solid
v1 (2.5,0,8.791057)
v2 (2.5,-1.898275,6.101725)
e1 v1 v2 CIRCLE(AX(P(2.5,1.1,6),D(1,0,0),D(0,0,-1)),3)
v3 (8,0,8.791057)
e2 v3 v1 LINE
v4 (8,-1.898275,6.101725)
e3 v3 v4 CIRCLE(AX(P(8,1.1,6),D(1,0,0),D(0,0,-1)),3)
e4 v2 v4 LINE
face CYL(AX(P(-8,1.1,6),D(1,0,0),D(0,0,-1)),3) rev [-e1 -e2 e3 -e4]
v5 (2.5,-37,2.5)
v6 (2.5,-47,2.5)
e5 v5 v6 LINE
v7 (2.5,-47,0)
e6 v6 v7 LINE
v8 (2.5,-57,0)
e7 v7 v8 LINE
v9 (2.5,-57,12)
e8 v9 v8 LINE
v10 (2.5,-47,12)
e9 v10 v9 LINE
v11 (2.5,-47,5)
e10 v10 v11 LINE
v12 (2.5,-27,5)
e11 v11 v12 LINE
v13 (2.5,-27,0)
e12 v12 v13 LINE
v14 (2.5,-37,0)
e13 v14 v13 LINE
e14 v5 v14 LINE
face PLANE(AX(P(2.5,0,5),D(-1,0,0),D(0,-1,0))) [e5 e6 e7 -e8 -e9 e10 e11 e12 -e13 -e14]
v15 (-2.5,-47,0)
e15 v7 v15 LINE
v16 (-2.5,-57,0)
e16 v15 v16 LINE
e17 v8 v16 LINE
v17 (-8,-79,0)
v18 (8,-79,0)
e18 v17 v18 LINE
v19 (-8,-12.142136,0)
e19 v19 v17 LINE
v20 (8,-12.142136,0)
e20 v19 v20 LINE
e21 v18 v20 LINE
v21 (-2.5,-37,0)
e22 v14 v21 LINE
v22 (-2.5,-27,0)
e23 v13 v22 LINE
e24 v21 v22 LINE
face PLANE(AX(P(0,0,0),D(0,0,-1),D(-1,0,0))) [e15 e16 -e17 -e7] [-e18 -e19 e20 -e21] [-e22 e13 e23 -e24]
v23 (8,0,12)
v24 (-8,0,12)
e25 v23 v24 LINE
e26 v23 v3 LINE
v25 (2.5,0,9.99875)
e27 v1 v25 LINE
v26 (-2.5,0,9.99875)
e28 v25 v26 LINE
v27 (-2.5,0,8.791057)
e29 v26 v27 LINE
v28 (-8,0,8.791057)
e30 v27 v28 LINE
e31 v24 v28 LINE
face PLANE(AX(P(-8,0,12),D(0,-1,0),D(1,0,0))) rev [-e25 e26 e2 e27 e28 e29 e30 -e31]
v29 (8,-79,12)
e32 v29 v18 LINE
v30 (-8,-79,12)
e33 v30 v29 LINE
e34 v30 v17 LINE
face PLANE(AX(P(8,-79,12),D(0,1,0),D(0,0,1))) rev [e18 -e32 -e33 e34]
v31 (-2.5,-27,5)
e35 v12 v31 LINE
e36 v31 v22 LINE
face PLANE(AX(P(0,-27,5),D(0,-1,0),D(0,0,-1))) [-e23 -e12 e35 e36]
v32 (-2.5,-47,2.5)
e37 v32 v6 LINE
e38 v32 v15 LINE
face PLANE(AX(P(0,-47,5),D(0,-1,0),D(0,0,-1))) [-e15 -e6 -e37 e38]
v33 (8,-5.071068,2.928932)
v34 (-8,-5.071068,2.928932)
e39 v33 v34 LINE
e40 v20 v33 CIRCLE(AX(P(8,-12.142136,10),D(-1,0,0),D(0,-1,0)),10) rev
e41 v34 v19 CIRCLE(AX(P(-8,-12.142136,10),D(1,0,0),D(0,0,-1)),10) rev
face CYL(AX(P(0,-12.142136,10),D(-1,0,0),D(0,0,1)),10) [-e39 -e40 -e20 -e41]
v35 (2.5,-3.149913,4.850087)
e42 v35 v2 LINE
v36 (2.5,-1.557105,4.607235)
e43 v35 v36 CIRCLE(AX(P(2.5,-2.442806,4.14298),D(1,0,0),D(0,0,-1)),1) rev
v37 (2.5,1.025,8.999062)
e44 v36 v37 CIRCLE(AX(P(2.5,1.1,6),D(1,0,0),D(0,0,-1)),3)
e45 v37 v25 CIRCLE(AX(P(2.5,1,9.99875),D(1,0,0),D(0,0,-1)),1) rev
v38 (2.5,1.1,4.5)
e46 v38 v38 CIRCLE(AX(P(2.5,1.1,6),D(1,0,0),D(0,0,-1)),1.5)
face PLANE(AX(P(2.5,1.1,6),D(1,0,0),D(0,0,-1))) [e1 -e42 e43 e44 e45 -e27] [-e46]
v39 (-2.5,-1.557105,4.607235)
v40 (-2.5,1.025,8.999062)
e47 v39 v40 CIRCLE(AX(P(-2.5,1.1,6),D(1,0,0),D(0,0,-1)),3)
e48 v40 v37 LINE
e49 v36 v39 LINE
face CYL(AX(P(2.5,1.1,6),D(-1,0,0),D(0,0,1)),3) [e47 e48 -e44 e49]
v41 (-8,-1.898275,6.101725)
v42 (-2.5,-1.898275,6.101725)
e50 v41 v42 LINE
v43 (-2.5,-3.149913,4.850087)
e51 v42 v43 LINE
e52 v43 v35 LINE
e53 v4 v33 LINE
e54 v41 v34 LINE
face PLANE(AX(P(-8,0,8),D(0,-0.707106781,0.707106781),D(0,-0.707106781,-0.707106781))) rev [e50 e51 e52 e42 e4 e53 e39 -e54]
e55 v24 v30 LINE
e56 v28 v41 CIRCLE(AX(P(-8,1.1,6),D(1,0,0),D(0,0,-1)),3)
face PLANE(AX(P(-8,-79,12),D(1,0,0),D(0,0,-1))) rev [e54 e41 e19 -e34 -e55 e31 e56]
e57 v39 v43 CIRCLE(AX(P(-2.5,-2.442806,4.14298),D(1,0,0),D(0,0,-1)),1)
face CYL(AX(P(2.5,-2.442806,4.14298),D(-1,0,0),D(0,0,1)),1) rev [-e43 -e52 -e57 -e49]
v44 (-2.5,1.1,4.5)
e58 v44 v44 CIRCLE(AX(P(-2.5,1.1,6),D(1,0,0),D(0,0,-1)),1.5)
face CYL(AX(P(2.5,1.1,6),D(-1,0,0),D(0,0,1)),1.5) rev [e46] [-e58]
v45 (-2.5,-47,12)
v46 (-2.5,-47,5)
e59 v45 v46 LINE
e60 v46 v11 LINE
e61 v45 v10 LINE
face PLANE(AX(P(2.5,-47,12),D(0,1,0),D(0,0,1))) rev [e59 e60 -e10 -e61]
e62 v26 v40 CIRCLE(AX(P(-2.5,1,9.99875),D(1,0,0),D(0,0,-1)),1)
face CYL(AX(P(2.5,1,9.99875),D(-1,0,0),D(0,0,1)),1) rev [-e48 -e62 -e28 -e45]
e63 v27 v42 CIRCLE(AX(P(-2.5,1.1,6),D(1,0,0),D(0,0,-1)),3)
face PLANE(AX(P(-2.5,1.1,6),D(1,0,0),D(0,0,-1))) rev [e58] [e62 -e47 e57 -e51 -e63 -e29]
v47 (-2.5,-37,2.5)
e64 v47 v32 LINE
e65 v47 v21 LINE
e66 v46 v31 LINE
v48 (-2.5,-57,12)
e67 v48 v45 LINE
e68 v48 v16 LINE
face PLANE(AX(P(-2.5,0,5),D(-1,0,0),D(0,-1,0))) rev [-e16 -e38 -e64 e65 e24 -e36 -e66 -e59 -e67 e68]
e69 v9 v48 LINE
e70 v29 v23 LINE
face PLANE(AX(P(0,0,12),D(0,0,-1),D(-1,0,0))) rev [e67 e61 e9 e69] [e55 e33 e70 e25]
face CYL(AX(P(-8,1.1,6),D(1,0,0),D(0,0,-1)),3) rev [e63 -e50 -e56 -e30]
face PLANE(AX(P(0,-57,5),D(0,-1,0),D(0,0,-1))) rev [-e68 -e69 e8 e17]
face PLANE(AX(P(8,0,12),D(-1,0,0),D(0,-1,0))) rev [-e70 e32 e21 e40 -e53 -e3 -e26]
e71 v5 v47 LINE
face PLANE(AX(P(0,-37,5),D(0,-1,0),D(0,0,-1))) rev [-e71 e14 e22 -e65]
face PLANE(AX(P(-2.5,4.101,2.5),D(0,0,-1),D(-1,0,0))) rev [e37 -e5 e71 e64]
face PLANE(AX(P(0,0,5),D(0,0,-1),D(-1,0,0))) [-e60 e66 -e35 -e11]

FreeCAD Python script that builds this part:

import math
import FreeCAD as App
import Part
import Sketcher
from FreeCAD import Vector
Q = App.Units.Quantity


def edges_at(feature, points):
    """Names of the edges that pass closest to the given points."""
    edges = feature.Shape.Edges
    near = lambda p: min(range(len(edges)), key=lambda i: edges[i].distToShape(Part.Vertex(*p))[0])
    return sorted({f"Edge{near(p) + 1}" for p in points})

doc = App.newDocument("Part")
params = doc.addObject("Spreadsheet::Sheet", "Params")
for row, (alias, value) in enumerate([
    ("sketch1_width", "16 mm"),
    ("sketch1_height", "79 mm"),
    ("pad1_length", "12 mm"),
    ("sketch2_width", "8 mm"),
    ("sketch3_radius", "3 mm"),
    ("sketch3_radius2", "1.5 mm"),
    ("sketch4_diameter", "6 mm"),
    ("sketch4_diameter2", "3 mm"),
    ("pad2_length", "5 mm"),
    ("fillet_radius", "1 mm"),
    ("fillet2_radius", "10 mm"),
    ("sketch5_width", "5 mm"),
    ("sketch5_height", "10 mm"),
    ("pocket3_length", "5 mm"),
    ("sketch6_width", "5 mm"),
    ("sketch6_height", "2.5 mm"),
    ("sketch7_width", "5 mm"),
    ("sketch7_height", "10 mm"),
], start=1):
    params.set(f"A{row}", alias)
    params.set(f"B{row}", "=" + value)
    params.setAlias(f"B{row}", alias)

body = doc.addObject("PartDesign::Body", "Body")

# Sketch on XY plane
sketch1 = body.newObject("Sketcher::SketchObject", "Sketch")
sketch1.AttachmentSupport = (doc.getObject("XY_Plane"), [""])
sketch1.MapMode = "FlatFace"
sketch1.addGeometry([
    Part.LineSegment(Vector(-8, 0, 0), Vector(-8, -79, 0)),
    Part.LineSegment(Vector(-8, -79, 0), Vector(8, -79, 0)),
    Part.LineSegment(Vector(8, -79, 0), Vector(8, 0, 0)),
    Part.LineSegment(Vector(8, 0, 0), Vector(-8, 0, 0)),
], False)
sketch1.addConstraint([
    Sketcher.Constraint("Coincident", 0, 2, 1, 1),
    Sketcher.Constraint("Coincident", 1, 2, 2, 1),
    Sketcher.Constraint("Coincident", 2, 2, 3, 1),
    Sketcher.Constraint("Coincident", 3, 2, 0, 1),
    Sketcher.Constraint("Vertical", 0),
    Sketcher.Constraint("Horizontal", 1),
    Sketcher.Constraint("Vertical", 2),
    Sketcher.Constraint("Horizontal", 3),
    Sketcher.Constraint("Symmetric", 2, 2, 3, 2, -1, 1),
    Sketcher.Constraint("DistanceX", 1, 1, 1, 2, Q("16 mm")),
    Sketcher.Constraint("DistanceY", 0, 2, 0, 1, Q("79 mm")),
])
sketch1.setExpression("Constraints[9]", "Params.sketch1_width")
sketch1.setExpression("Constraints[10]", "Params.sketch1_height")
pad1 = body.newObject("PartDesign::Pad", "Pad")
pad1.Profile = sketch1
pad1.setExpression("Length", "Params.pad1_length")

# Sketch on YZ plane
sketch2 = body.newObject("Sketcher::SketchObject", "Sketch001")
sketch2.AttachmentSupport = (doc.getObject("YZ_Plane"), [""])
sketch2.MapMode = "FlatFace"
sketch2.addGeometry([
    Part.LineSegment(Vector(0, 0, 0), Vector(0, 8, 0)),
    Part.LineSegment(Vector(0, 8, 0), Vector(-8, 0, 0)),
    Part.LineSegment(Vector(-8, 0, 0), Vector(0, 0, 0)),
], False)
sketch2.addConstraint([
    Sketcher.Constraint("Coincident", 0, 2, 1, 1),
    Sketcher.Constraint("Coincident", 1, 2, 2, 1),
    Sketcher.Constraint("Coincident", 2, 2, 0, 1),
    Sketcher.Constraint("Vertical", 0),
    Sketcher.Constraint("Horizontal", 2),
    Sketcher.Constraint("Coincident", 2, 2, -1, 1),
    Sketcher.Constraint("Equal", 2, 0),
    Sketcher.Constraint("DistanceX", 2, 1, 2, 2, Q("8 mm")),
])
sketch2.setExpression("Constraints[7]", "Params.sketch2_width")
pocket1 = body.newObject("PartDesign::Pocket", "Pocket")
pocket1.Profile = sketch2
pocket1.Type = "ThroughAll"
pocket1.Midplane = True

# Sketch on YZ plane
sketch3 = body.newObject("Sketcher::SketchObject", "Sketch002")
sketch3.AttachmentSupport = (doc.getObject("YZ_Plane"), [""])
sketch3.MapMode = "FlatFace"
sketch3.addGeometry([
    Part.ArcOfCircle(Part.Circle(Vector(1.1, 6, 0), Vector(0, 0, 1), 3), math.radians(-90), math.radians(111.510188)),  # 0
    Part.ArcOfCircle(Part.Circle(Vector(1.1, 6, 0), Vector(0, 0, 1), 3), math.radians(111.510188), math.radians(248.489812)),  # 1
    Part.ArcOfCircle(Part.Circle(Vector(1.1, 6, 0), Vector(0, 0, 1), 3), math.radians(-111.510188), math.radians(-90)),  # 2
    Part.ArcOfCircle(Part.Circle(Vector(1.1, 6, 0), Vector(0, 0, 1), 1.5), math.radians(-137.166572), math.radians(-90)),  # 3
    Part.ArcOfCircle(Part.Circle(Vector(1.1, 6, 0), Vector(0, 0, 1), 1.5), math.radians(137.166572), math.radians(222.833428)),  # 4
    Part.ArcOfCircle(Part.Circle(Vector(1.1, 6, 0), Vector(0, 0, 1), 1.5), math.radians(-90), math.radians(137.166572)),  # 5
], False)
sketch3.addConstraint([
    Sketcher.Constraint("Tangent", 0, 2, 1, 1),
    Sketcher.Constraint("Tangent", 1, 2, 2, 1),
    Sketcher.Constraint("Tangent", 2, 2, 0, 1),
    Sketcher.Constraint("Tangent", 3, 1, 4, 2),
    Sketcher.Constraint("Tangent", 4, 1, 5, 2),
    Sketcher.Constraint("Tangent", 5, 1, 3, 2),
    Sketcher.Constraint("Coincident", 3, 3, 0, 3),
    Sketcher.Constraint("PointOnObject", 0, 2, -2),
    Sketcher.Constraint("PointOnObject", 1, 2, -2),
    Sketcher.Constraint("PointOnObject", 3, 1, -2),
    Sketcher.Constraint("PointOnObject", 4, 1, -2),
    Sketcher.Constraint("Vertical", 5, 3, 2, 2),
    Sketcher.Constraint("Vertical", 2, 2, 5, 1),
    Sketcher.Constraint("Radius", 0, Q("3 mm")),
    Sketcher.Constraint("Radius", 3, Q("1.5 mm")),
    Sketcher.Constraint("DistanceY", -1, 1, 0, 3, Q("6 mm")),
    Sketcher.Constraint("DistanceX", -1, 1, 0, 3, Q("1.1 mm")),
])
sketch3.setExpression("Constraints[13]", "Params.sketch3_radius")
sketch3.setExpression("Constraints[14]", "Params.sketch3_radius2")
pocket2 = body.newObject("PartDesign::Pocket", "Pocket001")
pocket2.Profile = sketch3
pocket2.Type = "ThroughAll"
pocket2.Midplane = True

# Sketch on YZ plane
sketch4 = body.newObject("Sketcher::SketchObject", "Sketch003")
sketch4.AttachmentSupport = (doc.getObject("YZ_Plane"), [""])
sketch4.MapMode = "FlatFace"
sketch4.addGeometry([
    Part.Circle(Vector(1.1, 6, 0), Vector(0, 0, 1), 3),
    Part.Circle(Vector(1.1, 6, 0), Vector(0, 0, 1), 1.5),
], False)
sketch4.addConstraint([
    Sketcher.Constraint("Coincident", 1, 3, 0, 3),
    Sketcher.Constraint("Diameter", 0, Q("6 mm")),
    Sketcher.Constraint("Diameter", 1, Q("3 mm")),
    Sketcher.Constraint("DistanceY", -1, 1, 0, 3, Q("6 mm")),
    Sketcher.Constraint("DistanceX", -1, 1, 0, 3, Q("1.1 mm")),
])
sketch4.setExpression("Constraints[1]", "Params.sketch4_diameter")
sketch4.setExpression("Constraints[2]", "Params.sketch4_diameter2")
pad2 = body.newObject("PartDesign::Pad", "Pad001")
pad2.Profile = sketch4
pad2.setExpression("Length", "Params.pad2_length")
pad2.Midplane = True
doc.recompute()

fillet = body.newObject("PartDesign::Fillet", "Fillet")
fillet.Base = (pad2, edges_at(pad2, [(0, -1.898, 6.102), (0, 0, 8.791)]))
fillet.setExpression("Radius", "Params.fillet_radius")
doc.recompute()

fillet2 = body.newObject("PartDesign::Fillet", "Fillet001")
fillet2.Base = (fillet, edges_at(fillet, [(0, -8, 0)]))
fillet2.setExpression("Radius", "Params.fillet2_radius")

# Sketch on XY plane
sketch5 = body.newObject("Sketcher::SketchObject", "Sketch004")
sketch5.AttachmentSupport = (doc.getObject("XY_Plane"), [""])
sketch5.MapMode = "FlatFace"
sketch5.addGeometry([
    Part.LineSegment(Vector(2.5, -27, 0), Vector(2.5, -37, 0)),  # 0
    Part.LineSegment(Vector(2.5, -37, 0), Vector(-2.5, -37, 0)),  # 1
    Part.LineSegment(Vector(-2.5, -37, 0), Vector(-2.5, -27, 0)),  # 2
    Part.LineSegment(Vector(-2.5, -27, 0), Vector(2.5, -27, 0)),  # 3
    Part.LineSegment(Vector(2.5, -47, 0), Vector(2.5, -57, 0)),  # 4
    Part.LineSegment(Vector(2.5, -57, 0), Vector(-2.5, -57, 0)),  # 5
    Part.LineSegment(Vector(-2.5, -57, 0), Vector(-2.5, -47, 0)),  # 6
    Part.LineSegment(Vector(-2.5, -47, 0), Vector(2.5, -47, 0)),  # 7
], False)
sketch5.addConstraint([
    Sketcher.Constraint("Coincident", 0, 2, 1, 1),
    Sketcher.Constraint("Coincident", 1, 2, 2, 1),
    Sketcher.Constraint("Coincident", 2, 2, 3, 1),
    Sketcher.Constraint("Coincident", 3, 2, 0, 1),
    Sketcher.Constraint("Coincident", 4, 2, 5, 1),
    Sketcher.Constraint("Coincident", 5, 2, 6, 1),
    Sketcher.Constraint("Coincident", 6, 2, 7, 1),
    Sketcher.Constraint("Coincident", 7, 2, 4, 1),
    Sketcher.Constraint("Vertical", 0),
    Sketcher.Constraint("Horizontal", 1),
    Sketcher.Constraint("Vertical", 2),
    Sketcher.Constraint("Horizontal", 3),
    Sketcher.Constraint("Vertical", 4),
    Sketcher.Constraint("Horizontal", 5),
    Sketcher.Constraint("Vertical", 6),
    Sketcher.Constraint("Horizontal", 7),
    Sketcher.Constraint("Vertical", 3, 2, 4, 2),
    Sketcher.Constraint("Vertical", 2, 2, 5, 2),
    Sketcher.Constraint("Equal", 2, 4),
    Sketcher.Constraint("DistanceX", 1, 2, 1, 1, Q("5 mm")),
    Sketcher.Constraint("DistanceY", 0, 2, 0, 1, Q("10 mm")),
    Sketcher.Constraint("DistanceY", 0, 2, -1, 1, Q("37 mm")),
    Sketcher.Constraint("DistanceY", 4, 2, -1, 1, Q("57 mm")),
    Sketcher.Constraint("DistanceX", -1, 1, 0, 2, Q("2.5 mm")),
])
sketch5.setExpression("Constraints[19]", "Params.sketch5_width")
sketch5.setExpression("Constraints[20]", "Params.sketch5_height")
pocket3 = body.newObject("PartDesign::Pocket", "Pocket002")
pocket3.Profile = sketch5
pocket3.setExpression("Length", "Params.pocket3_length")
pocket3.Reversed = True

# Sketch on XZ plane
sketch6 = body.newObject("Sketcher::SketchObject", "Sketch005")
sketch6.AttachmentSupport = (doc.getObject("XZ_Plane"), [""])
sketch6.MapMode = "FlatFace"
sketch6.AttachmentOffset = App.Placement(Vector(0, 0, 47), App.Rotation())
sketch6.addGeometry([
    Part.LineSegment(Vector(-2.5, 5, 0), Vector(-2.5, 2.5, 0)),
    Part.LineSegment(Vector(-2.5, 2.5, 0), Vector(2.5, 2.5, 0)),
    Part.LineSegment(Vector(2.5, 2.5, 0), Vector(2.5, 5, 0)),
    Part.LineSegment(Vector(2.5, 5, 0), Vector(-2.5, 5, 0)),
], False)
sketch6.addConstraint([
    Sketcher.Constraint("Coincident", 0, 2, 1, 1),
    Sketcher.Constraint("Coincident", 1, 2, 2, 1),
    Sketcher.Constraint("Coincident", 2, 2, 3, 1),
    Sketcher.Constraint("Coincident", 3, 2, 0, 1),
    Sketcher.Constraint("Vertical", 0),
    Sketcher.Constraint("Horizontal", 1),
    Sketcher.Constraint("Vertical", 2),
    Sketcher.Constraint("Horizontal", 3),
    Sketcher.Constraint("DistanceX", 1, 1, 1, 2, Q("5 mm")),
    Sketcher.Constraint("DistanceY", 0, 2, 0, 1, Q("2.5 mm")),
    Sketcher.Constraint("DistanceY", -1, 1, 2, 2, Q("5 mm")),
    Sketcher.Constraint("DistanceX", 0, 2, -1, 1, Q("2.5 mm")),
])
sketch6.setExpression("Constraints[8]", "Params.sketch6_width")
sketch6.setExpression("Constraints[9]", "Params.sketch6_height")
pocket4 = body.newObject("PartDesign::Pocket", "Pocket003")
pocket4.Profile = sketch6
pocket4.Type = "UpToFirst"

# Sketch on XY plane
sketch7 = body.newObject("Sketcher::SketchObject", "Sketch006")
sketch7.AttachmentSupport = (doc.getObject("XY_Plane"), [""])
sketch7.MapMode = "FlatFace"
sketch7.addGeometry([
    Part.LineSegment(Vector(2.5, -47, 0), Vector(2.5, -57, 0)),
    Part.LineSegment(Vector(2.5, -57, 0), Vector(-2.5, -57, 0)),
    Part.LineSegment(Vector(-2.5, -57, 0), Vector(-2.5, -47, 0)),
    Part.LineSegment(Vector(-2.5, -47, 0), Vector(2.5, -47, 0)),
], False)
sketch7.addConstraint([
    Sketcher.Constraint("Coincident", 0, 2, 1, 1),
    Sketcher.Constraint("Coincident", 1, 2, 2, 1),
    Sketcher.Constraint("Coincident", 2, 2, 3, 1),
    Sketcher.Constraint("Coincident", 3, 2, 0, 1),
    Sketcher.Constraint("Vertical", 0),
    Sketcher.Constraint("Horizontal", 1),
    Sketcher.Constraint("Vertical", 2),
    Sketcher.Constraint("Horizontal", 3),
    Sketcher.Constraint("DistanceX", 1, 2, 1, 1, Q("5 mm")),
    Sketcher.Constraint("DistanceY", 0, 2, 0, 1, Q("10 mm")),
    Sketcher.Constraint("DistanceY", 0, 2, -1, 1, Q("57 mm")),
    Sketcher.Constraint("DistanceX", -1, 1, 0, 2, Q("2.5 mm")),
])
sketch7.setExpression("Constraints[8]", "Params.sketch7_width")
sketch7.setExpression("Constraints[9]", "Params.sketch7_height")
pocket5 = body.newObject("PartDesign::Pocket", "Pocket004")
pocket5.Profile = sketch7
pocket5.Type = "ThroughAll"
pocket5.Reversed = True

doc.recompute()
